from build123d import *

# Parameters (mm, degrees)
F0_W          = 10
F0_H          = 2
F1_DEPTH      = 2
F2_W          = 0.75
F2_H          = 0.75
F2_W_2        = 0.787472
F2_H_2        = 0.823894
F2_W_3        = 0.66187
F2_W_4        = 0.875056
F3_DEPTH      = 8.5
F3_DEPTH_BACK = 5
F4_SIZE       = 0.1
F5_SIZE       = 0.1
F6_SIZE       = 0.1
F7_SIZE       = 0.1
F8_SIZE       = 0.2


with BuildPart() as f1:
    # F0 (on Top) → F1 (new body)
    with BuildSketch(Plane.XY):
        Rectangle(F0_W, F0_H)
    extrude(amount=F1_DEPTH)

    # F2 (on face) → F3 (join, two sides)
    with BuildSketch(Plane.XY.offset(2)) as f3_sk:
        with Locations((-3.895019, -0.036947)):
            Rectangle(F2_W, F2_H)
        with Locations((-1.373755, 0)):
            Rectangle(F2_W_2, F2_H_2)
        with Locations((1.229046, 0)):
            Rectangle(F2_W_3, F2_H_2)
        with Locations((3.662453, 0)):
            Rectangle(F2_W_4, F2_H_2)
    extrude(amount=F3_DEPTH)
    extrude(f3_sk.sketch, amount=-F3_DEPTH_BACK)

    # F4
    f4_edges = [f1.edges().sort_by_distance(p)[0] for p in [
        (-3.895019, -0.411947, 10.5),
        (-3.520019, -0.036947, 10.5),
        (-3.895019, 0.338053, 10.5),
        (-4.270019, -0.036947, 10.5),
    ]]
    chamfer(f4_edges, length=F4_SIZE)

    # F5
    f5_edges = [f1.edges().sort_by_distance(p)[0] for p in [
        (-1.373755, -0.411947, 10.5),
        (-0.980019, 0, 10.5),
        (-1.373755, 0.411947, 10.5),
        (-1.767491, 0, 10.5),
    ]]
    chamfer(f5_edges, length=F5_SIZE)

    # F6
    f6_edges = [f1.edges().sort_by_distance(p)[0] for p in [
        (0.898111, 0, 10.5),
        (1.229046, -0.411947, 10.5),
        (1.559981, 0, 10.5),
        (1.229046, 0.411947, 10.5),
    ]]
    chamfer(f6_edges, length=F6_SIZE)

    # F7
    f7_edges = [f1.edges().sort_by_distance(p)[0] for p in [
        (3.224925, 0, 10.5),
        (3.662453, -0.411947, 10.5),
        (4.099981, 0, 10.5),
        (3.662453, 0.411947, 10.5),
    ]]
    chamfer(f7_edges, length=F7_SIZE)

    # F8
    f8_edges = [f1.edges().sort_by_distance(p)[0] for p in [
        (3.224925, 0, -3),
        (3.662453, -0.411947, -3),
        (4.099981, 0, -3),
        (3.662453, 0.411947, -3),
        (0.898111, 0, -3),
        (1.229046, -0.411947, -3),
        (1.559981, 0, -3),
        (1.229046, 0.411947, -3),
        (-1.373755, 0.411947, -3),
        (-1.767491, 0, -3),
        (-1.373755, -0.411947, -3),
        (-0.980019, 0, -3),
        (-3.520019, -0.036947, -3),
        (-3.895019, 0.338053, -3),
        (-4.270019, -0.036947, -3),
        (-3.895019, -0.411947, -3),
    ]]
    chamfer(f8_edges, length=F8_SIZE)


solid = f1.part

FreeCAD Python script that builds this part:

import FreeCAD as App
import Part
import Sketcher


def edges_at(feature, points):
    """Names of the edges that pass closest to the given points."""
    edges = feature.Shape.Edges
    near = lambda p: min(range(len(edges)), key=lambda i: edges[i].distToShape(Part.Vertex(*p))[0])
    return sorted({f"Edge{near(p) + 1}" for p in points})

doc = App.newDocument("Part")
params = doc.addObject("Spreadsheet::Sheet", "Params")
for row, (alias, value) in enumerate([
    ("sketch1_width", "10 mm"),
    ("sketch1_height", "2 mm"),
    ("pad1_length", "2 mm"),
    ("sketch2_width", "0.75 mm"),
    ("pad2_length", "8.5 mm"),
    ("pad2_length2", "5 mm"),
    ("chamfer_size", "0.1 mm"),
    ("chamfer2_size", "0.1 mm"),
    ("chamfer3_size", "0.1 mm"),
    ("chamfer4_size", "0.1 mm"),
    ("chamfer5_size", "0.2 mm"),
], start=1):
    params.set(f"A{row}", alias)
    params.set(f"B{row}", "=" + value)
    params.setAlias(f"B{row}", alias)

body = doc.addObject("PartDesign::Body", "Body")

# Sketch on XY plane
sketch1 = body.newObject("Sketcher::SketchObject", "Sketch")
sketch1.AttachmentSupport = (doc.getObject("XY_Plane"), [""])
sketch1.MapMode = "FlatFace"
sketch1.addGeometry([
    Part.LineSegment(App.Vector(-5, 1, 0), App.Vector(-5, -1, 0)),
    Part.LineSegment(App.Vector(-5, -1, 0), App.Vector(5, -1, 0)),
    Part.LineSegment(App.Vector(5, -1, 0), App.Vector(5, 1, 0)),
    Part.LineSegment(App.Vector(5, 1, 0), App.Vector(-5, 1, 0)),
], False)
sketch1.addConstraint([
    Sketcher.Constraint("Coincident", 0, 2, 1, 1),
    Sketcher.Constraint("Coincident", 1, 2, 2, 1),
    Sketcher.Constraint("Coincident", 2, 2, 3, 1),
    Sketcher.Constraint("Coincident", 3, 2, 0, 1),
    Sketcher.Constraint("Vertical", 0),
    Sketcher.Constraint("Horizontal", 1),
    Sketcher.Constraint("Vertical", 2),
    Sketcher.Constraint("Horizontal", 3),
    Sketcher.Constraint("Symmetric", 0, 2, 2, 2, -1, 1),
    Sketcher.Constraint("DistanceX", 1, 1, 1, 2, 10.0),
    Sketcher.Constraint("DistanceY", 0, 2, 0, 1, 2.0),
])
sketch1.setExpression("Constraints[9]", "Params.sketch1_width")
sketch1.setExpression("Constraints[10]", "Params.sketch1_height")
pad1 = body.newObject("PartDesign::Pad", "Pad")
pad1.Profile = sketch1
pad1.setExpression("Length", "Params.pad1_length")

# Sketch on XY plane
sketch2 = body.newObject("Sketcher::SketchObject", "Sketch001")
sketch2.AttachmentSupport = (doc.getObject("XY_Plane"), [""])
sketch2.MapMode = "FlatFace"
sketch2.AttachmentOffset = App.Placement(App.Vector(0, 0, 2), App.Rotation())
sketch2.addGeometry([
    Part.LineSegment(App.Vector(-4.3, 0.3, 0), App.Vector(-4.3, -0.4, 0)),  # 0
    Part.LineSegment(App.Vector(-4.3, -0.4, 0), App.Vector(-3.5, -0.4, 0)),  # 1
    Part.LineSegment(App.Vector(-3.5, -0.4, 0), App.Vector(-3.5, 0.3, 0)),  # 2
    Part.LineSegment(App.Vector(-3.5, 0.3, 0), App.Vector(-4.3, 0.3, 0)),  # 3
    Part.LineSegment(App.Vector(-1.8, 0.4, 0), App.Vector(-1.8, -0.4, 0)),  # 4
    Part.LineSegment(App.Vector(-1.8, -0.4, 0), App.Vector(-1, -0.4, 0)),  # 5
    Part.LineSegment(App.Vector(-1, -0.4, 0), App.Vector(-1, 0.4, 0)),  # 6
    Part.LineSegment(App.Vector(-1, 0.4, 0), App.Vector(-1.8, 0.4, 0)),  # 7
    Part.LineSegment(App.Vector(0.9, 0.4, 0), App.Vector(0.9, -0.4, 0)),  # 8
    Part.LineSegment(App.Vector(0.9, -0.4, 0), App.Vector(1.6, -0.4, 0)),  # 9
    Part.LineSegment(App.Vector(1.6, -0.4, 0), App.Vector(1.6, 0.4, 0)),  # 10
    Part.LineSegment(App.Vector(1.6, 0.4, 0), App.Vector(0.9, 0.4, 0)),  # 11
    Part.LineSegment(App.Vector(3.2, 0.4, 0), App.Vector(3.2, -0.4, 0)),  # 12
    Part.LineSegment(App.Vector(3.2, -0.4, 0), App.Vector(4.1, -0.4, 0)),  # 13
    Part.LineSegment(App.Vector(4.1, -0.4, 0), App.Vector(4.1, 0.4, 0)),  # 14
    Part.LineSegment(App.Vector(4.1, 0.4, 0), App.Vector(3.2, 0.4, 0)),  # 15
], False)
sketch2.addConstraint([
    Sketcher.Constraint("Coincident", 0, 2, 1, 1),
    Sketcher.Constraint("Coincident", 1, 2, 2, 1),
    Sketcher.Constraint("Coincident", 2, 2, 3, 1),
    Sketcher.Constraint("Coincident", 3, 2, 0, 1),
    Sketcher.Constraint("Coincident", 4, 2, 5, 1),
    Sketcher.Constraint("Coincident", 5, 2, 6, 1),
    Sketcher.Constraint("Coincident", 6, 2, 7, 1),
    Sketcher.Constraint("Coincident", 7, 2, 4, 1),
    Sketcher.Constraint("Coincident", 8, 2, 9, 1),
    Sketcher.Constraint("Coincident", 9, 2, 10, 1),
    Sketcher.Constraint("Coincident", 10, 2, 11, 1),
    Sketcher.Constraint("Coincident", 11, 2, 8, 1),
    Sketcher.Constraint("Coincident", 12, 2, 13, 1),
    Sketcher.Constraint("Coincident", 13, 2, 14, 1),
    Sketcher.Constraint("Coincident", 14, 2, 15, 1),
    Sketcher.Constraint("Coincident", 15, 2, 12, 1),
    Sketcher.Constraint("Vertical", 0),
    Sketcher.Constraint("Horizontal", 1),
    Sketcher.Constraint("Vertical", 2),
    Sketcher.Constraint("Horizontal", 3),
    Sketcher.Constraint("Vertical", 4),
    Sketcher.Constraint("Horizontal", 5),
    Sketcher.Constraint("Vertical", 6),
    Sketcher.Constraint("Horizontal", 7),
    Sketcher.Constraint("Vertical", 8),
    Sketcher.Constraint("Horizontal", 9),
    Sketcher.Constraint("Vertical", 10),
    Sketcher.Constraint("Horizontal", 11),
    Sketcher.Constraint("Vertical", 12),
    Sketcher.Constraint("Horizontal", 13),
    Sketcher.Constraint("Vertical", 14),
    Sketcher.Constraint("Horizontal", 15),
    Sketcher.Constraint("Horizontal", 1, 2, 4, 2),
    Sketcher.Constraint("Horizontal", 5, 2, 8, 2),
    Sketcher.Constraint("Horizontal", 7, 2, 10, 2),
    Sketcher.Constraint("Horizontal", 9, 2, 12, 2),
    Sketcher.Constraint("Horizontal", 11, 2, 14, 2),
    Sketcher.Constraint("Equal", 3, 0),
    Sketcher.Constraint("DistanceX", 1, 1, 1, 2, 0.75),
    Sketcher.Constraint("DistanceX", 1, 2, 5, 2, 2.54),
    Sketcher.Constraint("DistanceX", 5, 2, 9, 2, 2.54),
    Sketcher.Constraint("DistanceX", 9, 2, 13, 2, 2.54),
    Sketcher.Constraint("DistanceX", 5, 1, 5, 2, 0.787472),
    Sketcher.Constraint("DistanceX", 9, 1, 9, 2, 0.66187),
    Sketcher.Constraint("DistanceX", 13, 1, 13, 2, 0.875056),
    Sketcher.Constraint("DistanceY", 4, 2, 4, 1, 0.823894),
    Sketcher.Constraint("DistanceX", 0, 2, -1, 1, 4.270019),
    Sketcher.Constraint("DistanceY", 0, 2, -1, 1, 0.411947),
])
sketch2.setExpression("Constraints[38]", "Params.sketch2_width")
pad2 = body.newObject("PartDesign::Pad", "Pad001")
pad2.Profile = sketch2
pad2.Type = "TwoLengths"
pad2.setExpression("Length", "Params.pad2_length")
pad2.setExpression("Length2", "Params.pad2_length2")
doc.recompute()

chamfer = body.newObject("PartDesign::Chamfer", "Chamfer")
chamfer.Base = (pad2, edges_at(pad2, [
    (-3.895, -0.412, 10.5),
    (-3.52, -0.037, 10.5),
    (-3.895, 0.338, 10.5),
    (-4.27, -0.037, 10.5),
]))
chamfer.setExpression("Size", "Params.chamfer_size")
doc.recompute()

chamfer2 = body.newObject("PartDesign::Chamfer", "Chamfer001")
chamfer2.Base = (chamfer, edges_at(chamfer, [
    (-1.374, -0.412, 10.5),
    (-0.98, 0, 10.5),
    (-1.374, 0.412, 10.5),
    (-1.767, 0, 10.5),
]))
chamfer2.setExpression("Size", "Params.chamfer2_size")
doc.recompute()

chamfer3 = body.newObject("PartDesign::Chamfer", "Chamfer002")
chamfer3.Base = (chamfer2, edges_at(chamfer2, [
    (0.898, 0, 10.5),
    (1.229, -0.412, 10.5),
    (1.56, 0, 10.5),
    (1.229, 0.412, 10.5),
]))
chamfer3.setExpression("Size", "Params.chamfer3_size")
doc.recompute()

chamfer4 = body.newObject("PartDesign::Chamfer", "Chamfer003")
chamfer4.Base = (chamfer3, edges_at(chamfer3, [
    (3.225, 0, 10.5),
    (3.662, -0.412, 10.5),
    (4.1, 0, 10.5),
    (3.662, 0.412, 10.5),
]))
chamfer4.setExpression("Size", "Params.chamfer4_size")
doc.recompute()

chamfer5 = body.newObject("PartDesign::Chamfer", "Chamfer004")
chamfer5.Base = (chamfer4, edges_at(chamfer4, [
    (3.225, 0, -3),
    (3.662, -0.412, -3),
    (4.1, 0, -3),
    (3.662, 0.412, -3),
    (0.898, 0, -3),
    (1.229, -0.412, -3),
    (1.56, 0, -3),
    (1.229, 0.412, -3),
    (-1.374, 0.412, -3),
    (-1.767, 0, -3),
    (-1.374, -0.412, -3),
    (-0.98, 0, -3),
    (-3.52, -0.037, -3),
    (-3.895, 0.338, -3),
    (-4.27, -0.037, -3),
    (-3.895, -0.412, -3),
]))
chamfer5.setExpression("Size", "Params.chamfer5_size")

doc.recompute()
